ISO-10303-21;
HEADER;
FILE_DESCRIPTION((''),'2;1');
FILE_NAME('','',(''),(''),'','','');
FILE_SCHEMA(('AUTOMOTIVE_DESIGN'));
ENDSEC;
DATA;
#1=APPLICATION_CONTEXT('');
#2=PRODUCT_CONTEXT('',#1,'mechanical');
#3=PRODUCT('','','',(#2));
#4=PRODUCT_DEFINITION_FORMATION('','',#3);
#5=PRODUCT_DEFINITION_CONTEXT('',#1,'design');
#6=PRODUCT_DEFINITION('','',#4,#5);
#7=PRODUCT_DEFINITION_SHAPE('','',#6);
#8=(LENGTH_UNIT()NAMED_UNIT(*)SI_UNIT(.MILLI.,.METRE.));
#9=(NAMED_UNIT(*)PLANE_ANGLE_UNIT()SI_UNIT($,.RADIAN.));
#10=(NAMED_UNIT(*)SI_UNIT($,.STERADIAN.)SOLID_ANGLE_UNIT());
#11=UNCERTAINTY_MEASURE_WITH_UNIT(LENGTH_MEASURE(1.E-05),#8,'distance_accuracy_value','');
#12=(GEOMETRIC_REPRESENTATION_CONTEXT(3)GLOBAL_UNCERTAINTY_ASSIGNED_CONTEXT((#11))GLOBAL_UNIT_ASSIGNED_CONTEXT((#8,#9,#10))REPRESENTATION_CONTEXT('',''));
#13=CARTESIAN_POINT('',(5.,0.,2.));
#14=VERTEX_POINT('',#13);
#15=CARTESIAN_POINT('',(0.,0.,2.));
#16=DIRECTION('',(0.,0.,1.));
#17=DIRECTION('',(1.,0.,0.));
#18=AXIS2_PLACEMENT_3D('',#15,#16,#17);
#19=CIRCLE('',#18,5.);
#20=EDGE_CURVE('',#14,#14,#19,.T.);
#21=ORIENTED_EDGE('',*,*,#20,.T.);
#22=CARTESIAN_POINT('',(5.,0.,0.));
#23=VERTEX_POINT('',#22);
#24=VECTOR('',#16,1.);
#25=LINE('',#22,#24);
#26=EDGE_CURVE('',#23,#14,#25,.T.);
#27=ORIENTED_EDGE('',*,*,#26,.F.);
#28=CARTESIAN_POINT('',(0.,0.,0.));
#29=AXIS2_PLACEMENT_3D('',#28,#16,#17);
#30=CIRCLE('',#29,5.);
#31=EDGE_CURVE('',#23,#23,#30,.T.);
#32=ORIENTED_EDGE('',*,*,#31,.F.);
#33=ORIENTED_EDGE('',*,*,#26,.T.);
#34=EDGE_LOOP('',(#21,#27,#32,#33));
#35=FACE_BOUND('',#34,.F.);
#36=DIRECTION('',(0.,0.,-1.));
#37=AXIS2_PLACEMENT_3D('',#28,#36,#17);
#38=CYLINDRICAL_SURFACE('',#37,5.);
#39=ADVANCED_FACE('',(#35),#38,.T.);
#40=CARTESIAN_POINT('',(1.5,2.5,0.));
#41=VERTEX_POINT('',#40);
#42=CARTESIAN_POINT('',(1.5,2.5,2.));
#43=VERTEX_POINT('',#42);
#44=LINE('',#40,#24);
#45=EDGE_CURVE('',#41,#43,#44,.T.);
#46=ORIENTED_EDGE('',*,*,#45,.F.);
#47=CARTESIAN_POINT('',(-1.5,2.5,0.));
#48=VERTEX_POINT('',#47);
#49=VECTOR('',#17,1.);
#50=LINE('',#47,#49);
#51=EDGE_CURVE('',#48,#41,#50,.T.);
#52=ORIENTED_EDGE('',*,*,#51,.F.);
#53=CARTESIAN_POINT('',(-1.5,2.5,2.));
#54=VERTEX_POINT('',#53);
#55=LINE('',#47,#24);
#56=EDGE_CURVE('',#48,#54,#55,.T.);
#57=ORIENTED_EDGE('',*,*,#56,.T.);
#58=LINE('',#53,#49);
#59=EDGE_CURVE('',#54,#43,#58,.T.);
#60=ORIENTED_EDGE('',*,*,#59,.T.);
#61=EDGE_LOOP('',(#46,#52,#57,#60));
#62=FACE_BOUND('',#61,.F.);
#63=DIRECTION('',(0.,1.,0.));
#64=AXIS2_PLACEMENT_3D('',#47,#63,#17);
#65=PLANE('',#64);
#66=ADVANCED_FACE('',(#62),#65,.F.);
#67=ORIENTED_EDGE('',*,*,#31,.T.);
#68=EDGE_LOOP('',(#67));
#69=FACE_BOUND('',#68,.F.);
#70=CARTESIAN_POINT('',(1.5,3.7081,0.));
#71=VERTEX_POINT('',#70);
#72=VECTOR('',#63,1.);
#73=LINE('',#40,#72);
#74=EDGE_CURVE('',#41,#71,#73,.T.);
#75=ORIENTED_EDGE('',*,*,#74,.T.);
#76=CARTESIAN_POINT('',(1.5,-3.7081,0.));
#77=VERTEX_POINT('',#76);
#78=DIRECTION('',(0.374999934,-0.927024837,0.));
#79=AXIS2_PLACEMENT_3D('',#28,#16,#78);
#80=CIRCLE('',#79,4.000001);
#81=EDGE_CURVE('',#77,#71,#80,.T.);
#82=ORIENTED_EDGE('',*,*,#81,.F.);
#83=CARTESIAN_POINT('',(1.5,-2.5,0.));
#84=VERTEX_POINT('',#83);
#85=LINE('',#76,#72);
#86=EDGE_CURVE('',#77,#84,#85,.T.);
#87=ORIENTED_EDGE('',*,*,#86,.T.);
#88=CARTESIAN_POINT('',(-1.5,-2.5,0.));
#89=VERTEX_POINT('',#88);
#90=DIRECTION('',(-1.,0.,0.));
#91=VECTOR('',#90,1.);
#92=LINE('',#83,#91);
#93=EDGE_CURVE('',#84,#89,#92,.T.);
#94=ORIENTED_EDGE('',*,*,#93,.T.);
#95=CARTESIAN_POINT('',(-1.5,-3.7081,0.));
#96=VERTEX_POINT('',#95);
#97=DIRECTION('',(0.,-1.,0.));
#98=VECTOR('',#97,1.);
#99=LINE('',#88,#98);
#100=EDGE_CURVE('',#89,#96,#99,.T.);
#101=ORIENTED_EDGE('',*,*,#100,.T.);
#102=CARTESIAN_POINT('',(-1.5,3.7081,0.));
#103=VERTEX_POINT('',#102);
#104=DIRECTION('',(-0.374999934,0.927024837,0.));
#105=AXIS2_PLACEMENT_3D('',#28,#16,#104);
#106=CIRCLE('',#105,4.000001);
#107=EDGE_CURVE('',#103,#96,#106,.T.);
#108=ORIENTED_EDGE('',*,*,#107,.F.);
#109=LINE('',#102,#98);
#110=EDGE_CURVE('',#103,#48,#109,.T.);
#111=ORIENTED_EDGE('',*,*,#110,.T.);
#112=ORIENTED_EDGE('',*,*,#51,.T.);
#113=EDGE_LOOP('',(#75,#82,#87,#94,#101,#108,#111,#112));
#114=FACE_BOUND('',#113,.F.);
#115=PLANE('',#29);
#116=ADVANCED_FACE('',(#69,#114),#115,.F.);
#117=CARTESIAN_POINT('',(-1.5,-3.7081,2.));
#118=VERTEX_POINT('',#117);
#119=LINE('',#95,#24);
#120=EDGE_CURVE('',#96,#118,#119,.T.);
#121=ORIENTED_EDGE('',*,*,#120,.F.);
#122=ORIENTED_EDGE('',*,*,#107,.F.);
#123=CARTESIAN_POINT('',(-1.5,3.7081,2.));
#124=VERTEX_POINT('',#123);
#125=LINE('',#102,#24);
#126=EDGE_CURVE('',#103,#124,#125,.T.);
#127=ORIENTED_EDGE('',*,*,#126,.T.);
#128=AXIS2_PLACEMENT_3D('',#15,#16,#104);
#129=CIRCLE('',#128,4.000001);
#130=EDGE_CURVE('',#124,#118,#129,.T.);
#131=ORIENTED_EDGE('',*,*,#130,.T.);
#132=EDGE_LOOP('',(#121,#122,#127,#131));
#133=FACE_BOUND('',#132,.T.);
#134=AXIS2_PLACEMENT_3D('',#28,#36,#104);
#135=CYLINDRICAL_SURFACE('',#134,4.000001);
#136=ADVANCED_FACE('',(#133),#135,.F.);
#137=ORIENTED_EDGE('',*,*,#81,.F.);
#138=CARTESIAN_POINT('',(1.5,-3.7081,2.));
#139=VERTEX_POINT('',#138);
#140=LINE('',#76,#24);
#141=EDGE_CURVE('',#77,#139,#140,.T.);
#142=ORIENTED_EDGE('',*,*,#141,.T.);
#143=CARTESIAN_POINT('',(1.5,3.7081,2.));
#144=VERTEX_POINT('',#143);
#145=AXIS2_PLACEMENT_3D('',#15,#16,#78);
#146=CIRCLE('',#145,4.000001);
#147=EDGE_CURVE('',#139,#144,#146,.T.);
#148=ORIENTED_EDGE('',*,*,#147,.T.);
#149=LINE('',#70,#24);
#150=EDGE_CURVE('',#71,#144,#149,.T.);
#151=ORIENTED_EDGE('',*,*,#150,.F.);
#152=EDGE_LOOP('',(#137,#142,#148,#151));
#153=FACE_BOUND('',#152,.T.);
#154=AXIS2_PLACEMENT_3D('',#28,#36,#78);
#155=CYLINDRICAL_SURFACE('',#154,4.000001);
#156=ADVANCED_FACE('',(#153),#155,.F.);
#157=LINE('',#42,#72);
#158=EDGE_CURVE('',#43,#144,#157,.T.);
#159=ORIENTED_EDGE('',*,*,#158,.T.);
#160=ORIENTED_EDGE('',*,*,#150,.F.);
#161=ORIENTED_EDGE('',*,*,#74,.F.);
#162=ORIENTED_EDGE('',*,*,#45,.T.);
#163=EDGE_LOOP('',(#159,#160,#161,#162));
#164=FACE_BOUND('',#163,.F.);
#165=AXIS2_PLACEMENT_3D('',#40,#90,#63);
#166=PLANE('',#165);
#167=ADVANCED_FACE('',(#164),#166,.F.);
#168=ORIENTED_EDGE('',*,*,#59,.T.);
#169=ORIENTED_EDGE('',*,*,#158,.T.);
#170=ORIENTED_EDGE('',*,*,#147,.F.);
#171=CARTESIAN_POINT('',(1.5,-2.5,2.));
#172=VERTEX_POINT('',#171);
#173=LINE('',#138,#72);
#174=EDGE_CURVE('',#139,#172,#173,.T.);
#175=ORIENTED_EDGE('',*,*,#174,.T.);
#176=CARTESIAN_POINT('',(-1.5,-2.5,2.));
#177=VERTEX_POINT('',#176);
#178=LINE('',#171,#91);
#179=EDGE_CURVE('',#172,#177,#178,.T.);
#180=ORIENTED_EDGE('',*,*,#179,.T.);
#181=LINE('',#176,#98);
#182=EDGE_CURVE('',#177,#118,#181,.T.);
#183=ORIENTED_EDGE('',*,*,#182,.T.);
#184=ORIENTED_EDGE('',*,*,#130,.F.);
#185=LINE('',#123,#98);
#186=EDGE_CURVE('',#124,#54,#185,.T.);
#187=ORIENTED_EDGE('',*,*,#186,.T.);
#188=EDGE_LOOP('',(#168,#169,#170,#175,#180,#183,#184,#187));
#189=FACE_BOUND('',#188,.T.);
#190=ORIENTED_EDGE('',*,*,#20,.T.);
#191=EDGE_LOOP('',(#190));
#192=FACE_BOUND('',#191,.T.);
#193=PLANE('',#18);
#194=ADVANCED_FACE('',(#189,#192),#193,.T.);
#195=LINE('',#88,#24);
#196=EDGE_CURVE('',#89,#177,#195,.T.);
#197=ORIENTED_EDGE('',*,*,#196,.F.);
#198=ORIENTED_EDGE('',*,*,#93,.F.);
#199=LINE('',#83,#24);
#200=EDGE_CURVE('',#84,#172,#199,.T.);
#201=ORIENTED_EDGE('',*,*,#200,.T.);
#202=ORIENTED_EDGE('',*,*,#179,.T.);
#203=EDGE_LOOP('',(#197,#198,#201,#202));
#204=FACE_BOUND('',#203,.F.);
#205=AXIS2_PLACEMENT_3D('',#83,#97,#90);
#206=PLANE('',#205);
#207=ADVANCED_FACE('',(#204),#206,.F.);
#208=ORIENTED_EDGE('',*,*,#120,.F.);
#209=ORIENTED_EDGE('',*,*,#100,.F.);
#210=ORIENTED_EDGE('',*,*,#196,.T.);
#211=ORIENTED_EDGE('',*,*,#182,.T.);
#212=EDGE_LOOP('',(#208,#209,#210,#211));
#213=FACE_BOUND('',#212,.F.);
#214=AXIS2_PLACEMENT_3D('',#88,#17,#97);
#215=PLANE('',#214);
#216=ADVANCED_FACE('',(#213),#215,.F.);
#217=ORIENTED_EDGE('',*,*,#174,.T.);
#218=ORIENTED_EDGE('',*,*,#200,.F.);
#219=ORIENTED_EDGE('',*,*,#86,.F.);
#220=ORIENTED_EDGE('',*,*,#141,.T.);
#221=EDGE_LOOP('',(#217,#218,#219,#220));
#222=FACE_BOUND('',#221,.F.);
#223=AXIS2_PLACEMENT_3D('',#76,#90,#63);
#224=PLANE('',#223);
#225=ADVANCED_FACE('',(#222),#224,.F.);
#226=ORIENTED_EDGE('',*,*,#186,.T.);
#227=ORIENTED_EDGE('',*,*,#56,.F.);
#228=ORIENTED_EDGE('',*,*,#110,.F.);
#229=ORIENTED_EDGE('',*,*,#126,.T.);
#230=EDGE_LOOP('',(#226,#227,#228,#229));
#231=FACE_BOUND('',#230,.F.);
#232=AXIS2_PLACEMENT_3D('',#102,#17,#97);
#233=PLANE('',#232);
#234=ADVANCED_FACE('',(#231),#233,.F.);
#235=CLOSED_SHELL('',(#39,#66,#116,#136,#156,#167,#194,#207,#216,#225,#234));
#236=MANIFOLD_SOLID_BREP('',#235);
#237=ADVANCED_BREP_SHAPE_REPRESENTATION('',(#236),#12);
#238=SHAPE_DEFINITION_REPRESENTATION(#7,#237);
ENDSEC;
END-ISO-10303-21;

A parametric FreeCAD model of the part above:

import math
import FreeCAD as App
import Part
import Sketcher
from FreeCAD import Vector
Q = App.Units.Quantity

doc = App.newDocument("Part")
body = doc.addObject("PartDesign::Body", "Body")

# Sketch on XY plane
sketch1 = body.newObject("Sketcher::SketchObject", "Sketch")
sketch1.AttachmentSupport = (doc.getObject("XY_Plane"), [""])
sketch1.MapMode = "FlatFace"
sketch1.addGeometry([
    Part.Circle(Vector(0, 0, 0), Vector(0, 0, 1), 5),  # 0
    Part.ArcOfCircle(Part.Circle(Vector(0, 0, 0), Vector(0, 0, 1), 4), math.radians(-68), math.radians(68)),  # 1
    Part.LineSegment(Vector(1.5, -3.7, 0), Vector(1.5, -2.5, 0)),  # 2
    Part.LineSegment(Vector(1.5, -2.5, 0), Vector(-1.5, -2.5, 0)),  # 3
    Part.LineSegment(Vector(-1.5, -2.5, 0), Vector(-1.5, -3.7, 0)),  # 4
    Part.ArcOfCircle(Part.Circle(Vector(0, 0, 0), Vector(0, 0, 1), 4), math.radians(112), math.radians(248)),  # 5
    Part.LineSegment(Vector(-1.5, 3.7, 0), Vector(-1.5, 2.5, 0)),  # 6
    Part.LineSegment(Vector(-1.5, 2.5, 0), Vector(1.5, 2.5, 0)),  # 7
    Part.LineSegment(Vector(1.5, 2.5, 0), Vector(1.5, 3.7, 0)),  # 8
], False)
sketch1.addConstraint([
    Sketcher.Constraint("Coincident", 1, 1, 2, 1),
    Sketcher.Constraint("Coincident", 2, 2, 3, 1),
    Sketcher.Constraint("Coincident", 3, 2, 4, 1),
    Sketcher.Constraint("Coincident", 4, 2, 5, 2),
    Sketcher.Constraint("Coincident", 5, 1, 6, 1),
    Sketcher.Constraint("Coincident", 6, 2, 7, 1),
    Sketcher.Constraint("Coincident", 7, 2, 8, 1),
    Sketcher.Constraint("Coincident", 8, 2, 1, 2),
    Sketcher.Constraint("Vertical", 2),
    Sketcher.Constraint("Horizontal", 3),
    Sketcher.Constraint("Vertical", 4),
    Sketcher.Constraint("Vertical", 6),
    Sketcher.Constraint("Horizontal", 7),
    Sketcher.Constraint("Vertical", 8),
    Sketcher.Constraint("Coincident", 0, 3, -1, 1),
    Sketcher.Constraint("Coincident", 1, 3, -1, 1),
    Sketcher.Constraint("Coincident", 5, 3, -1, 1),
    Sketcher.Constraint("Equal", 1, 5),
    Sketcher.Constraint("Symmetric", 2, 2, 6, 2, -1, 1),
    Sketcher.Constraint("Horizontal", 1, 1, 4, 2),
    Sketcher.Constraint("Horizontal", 5, 1, 8, 2),
    Sketcher.Constraint("Diameter", 0, Q("10 mm")),
    Sketcher.Constraint("Radius", 1, Q("4 mm")),
    Sketcher.Constraint("DistanceX", 3, 2, 3, 1, Q("3 mm")),
    Sketcher.Constraint("DistanceY", 3, 2, 6, 2, Q("5 mm")),
])
pad1 = body.newObject("PartDesign::Pad", "Pad")
pad1.Profile = sketch1
pad1.Length = 2

doc.recompute()
